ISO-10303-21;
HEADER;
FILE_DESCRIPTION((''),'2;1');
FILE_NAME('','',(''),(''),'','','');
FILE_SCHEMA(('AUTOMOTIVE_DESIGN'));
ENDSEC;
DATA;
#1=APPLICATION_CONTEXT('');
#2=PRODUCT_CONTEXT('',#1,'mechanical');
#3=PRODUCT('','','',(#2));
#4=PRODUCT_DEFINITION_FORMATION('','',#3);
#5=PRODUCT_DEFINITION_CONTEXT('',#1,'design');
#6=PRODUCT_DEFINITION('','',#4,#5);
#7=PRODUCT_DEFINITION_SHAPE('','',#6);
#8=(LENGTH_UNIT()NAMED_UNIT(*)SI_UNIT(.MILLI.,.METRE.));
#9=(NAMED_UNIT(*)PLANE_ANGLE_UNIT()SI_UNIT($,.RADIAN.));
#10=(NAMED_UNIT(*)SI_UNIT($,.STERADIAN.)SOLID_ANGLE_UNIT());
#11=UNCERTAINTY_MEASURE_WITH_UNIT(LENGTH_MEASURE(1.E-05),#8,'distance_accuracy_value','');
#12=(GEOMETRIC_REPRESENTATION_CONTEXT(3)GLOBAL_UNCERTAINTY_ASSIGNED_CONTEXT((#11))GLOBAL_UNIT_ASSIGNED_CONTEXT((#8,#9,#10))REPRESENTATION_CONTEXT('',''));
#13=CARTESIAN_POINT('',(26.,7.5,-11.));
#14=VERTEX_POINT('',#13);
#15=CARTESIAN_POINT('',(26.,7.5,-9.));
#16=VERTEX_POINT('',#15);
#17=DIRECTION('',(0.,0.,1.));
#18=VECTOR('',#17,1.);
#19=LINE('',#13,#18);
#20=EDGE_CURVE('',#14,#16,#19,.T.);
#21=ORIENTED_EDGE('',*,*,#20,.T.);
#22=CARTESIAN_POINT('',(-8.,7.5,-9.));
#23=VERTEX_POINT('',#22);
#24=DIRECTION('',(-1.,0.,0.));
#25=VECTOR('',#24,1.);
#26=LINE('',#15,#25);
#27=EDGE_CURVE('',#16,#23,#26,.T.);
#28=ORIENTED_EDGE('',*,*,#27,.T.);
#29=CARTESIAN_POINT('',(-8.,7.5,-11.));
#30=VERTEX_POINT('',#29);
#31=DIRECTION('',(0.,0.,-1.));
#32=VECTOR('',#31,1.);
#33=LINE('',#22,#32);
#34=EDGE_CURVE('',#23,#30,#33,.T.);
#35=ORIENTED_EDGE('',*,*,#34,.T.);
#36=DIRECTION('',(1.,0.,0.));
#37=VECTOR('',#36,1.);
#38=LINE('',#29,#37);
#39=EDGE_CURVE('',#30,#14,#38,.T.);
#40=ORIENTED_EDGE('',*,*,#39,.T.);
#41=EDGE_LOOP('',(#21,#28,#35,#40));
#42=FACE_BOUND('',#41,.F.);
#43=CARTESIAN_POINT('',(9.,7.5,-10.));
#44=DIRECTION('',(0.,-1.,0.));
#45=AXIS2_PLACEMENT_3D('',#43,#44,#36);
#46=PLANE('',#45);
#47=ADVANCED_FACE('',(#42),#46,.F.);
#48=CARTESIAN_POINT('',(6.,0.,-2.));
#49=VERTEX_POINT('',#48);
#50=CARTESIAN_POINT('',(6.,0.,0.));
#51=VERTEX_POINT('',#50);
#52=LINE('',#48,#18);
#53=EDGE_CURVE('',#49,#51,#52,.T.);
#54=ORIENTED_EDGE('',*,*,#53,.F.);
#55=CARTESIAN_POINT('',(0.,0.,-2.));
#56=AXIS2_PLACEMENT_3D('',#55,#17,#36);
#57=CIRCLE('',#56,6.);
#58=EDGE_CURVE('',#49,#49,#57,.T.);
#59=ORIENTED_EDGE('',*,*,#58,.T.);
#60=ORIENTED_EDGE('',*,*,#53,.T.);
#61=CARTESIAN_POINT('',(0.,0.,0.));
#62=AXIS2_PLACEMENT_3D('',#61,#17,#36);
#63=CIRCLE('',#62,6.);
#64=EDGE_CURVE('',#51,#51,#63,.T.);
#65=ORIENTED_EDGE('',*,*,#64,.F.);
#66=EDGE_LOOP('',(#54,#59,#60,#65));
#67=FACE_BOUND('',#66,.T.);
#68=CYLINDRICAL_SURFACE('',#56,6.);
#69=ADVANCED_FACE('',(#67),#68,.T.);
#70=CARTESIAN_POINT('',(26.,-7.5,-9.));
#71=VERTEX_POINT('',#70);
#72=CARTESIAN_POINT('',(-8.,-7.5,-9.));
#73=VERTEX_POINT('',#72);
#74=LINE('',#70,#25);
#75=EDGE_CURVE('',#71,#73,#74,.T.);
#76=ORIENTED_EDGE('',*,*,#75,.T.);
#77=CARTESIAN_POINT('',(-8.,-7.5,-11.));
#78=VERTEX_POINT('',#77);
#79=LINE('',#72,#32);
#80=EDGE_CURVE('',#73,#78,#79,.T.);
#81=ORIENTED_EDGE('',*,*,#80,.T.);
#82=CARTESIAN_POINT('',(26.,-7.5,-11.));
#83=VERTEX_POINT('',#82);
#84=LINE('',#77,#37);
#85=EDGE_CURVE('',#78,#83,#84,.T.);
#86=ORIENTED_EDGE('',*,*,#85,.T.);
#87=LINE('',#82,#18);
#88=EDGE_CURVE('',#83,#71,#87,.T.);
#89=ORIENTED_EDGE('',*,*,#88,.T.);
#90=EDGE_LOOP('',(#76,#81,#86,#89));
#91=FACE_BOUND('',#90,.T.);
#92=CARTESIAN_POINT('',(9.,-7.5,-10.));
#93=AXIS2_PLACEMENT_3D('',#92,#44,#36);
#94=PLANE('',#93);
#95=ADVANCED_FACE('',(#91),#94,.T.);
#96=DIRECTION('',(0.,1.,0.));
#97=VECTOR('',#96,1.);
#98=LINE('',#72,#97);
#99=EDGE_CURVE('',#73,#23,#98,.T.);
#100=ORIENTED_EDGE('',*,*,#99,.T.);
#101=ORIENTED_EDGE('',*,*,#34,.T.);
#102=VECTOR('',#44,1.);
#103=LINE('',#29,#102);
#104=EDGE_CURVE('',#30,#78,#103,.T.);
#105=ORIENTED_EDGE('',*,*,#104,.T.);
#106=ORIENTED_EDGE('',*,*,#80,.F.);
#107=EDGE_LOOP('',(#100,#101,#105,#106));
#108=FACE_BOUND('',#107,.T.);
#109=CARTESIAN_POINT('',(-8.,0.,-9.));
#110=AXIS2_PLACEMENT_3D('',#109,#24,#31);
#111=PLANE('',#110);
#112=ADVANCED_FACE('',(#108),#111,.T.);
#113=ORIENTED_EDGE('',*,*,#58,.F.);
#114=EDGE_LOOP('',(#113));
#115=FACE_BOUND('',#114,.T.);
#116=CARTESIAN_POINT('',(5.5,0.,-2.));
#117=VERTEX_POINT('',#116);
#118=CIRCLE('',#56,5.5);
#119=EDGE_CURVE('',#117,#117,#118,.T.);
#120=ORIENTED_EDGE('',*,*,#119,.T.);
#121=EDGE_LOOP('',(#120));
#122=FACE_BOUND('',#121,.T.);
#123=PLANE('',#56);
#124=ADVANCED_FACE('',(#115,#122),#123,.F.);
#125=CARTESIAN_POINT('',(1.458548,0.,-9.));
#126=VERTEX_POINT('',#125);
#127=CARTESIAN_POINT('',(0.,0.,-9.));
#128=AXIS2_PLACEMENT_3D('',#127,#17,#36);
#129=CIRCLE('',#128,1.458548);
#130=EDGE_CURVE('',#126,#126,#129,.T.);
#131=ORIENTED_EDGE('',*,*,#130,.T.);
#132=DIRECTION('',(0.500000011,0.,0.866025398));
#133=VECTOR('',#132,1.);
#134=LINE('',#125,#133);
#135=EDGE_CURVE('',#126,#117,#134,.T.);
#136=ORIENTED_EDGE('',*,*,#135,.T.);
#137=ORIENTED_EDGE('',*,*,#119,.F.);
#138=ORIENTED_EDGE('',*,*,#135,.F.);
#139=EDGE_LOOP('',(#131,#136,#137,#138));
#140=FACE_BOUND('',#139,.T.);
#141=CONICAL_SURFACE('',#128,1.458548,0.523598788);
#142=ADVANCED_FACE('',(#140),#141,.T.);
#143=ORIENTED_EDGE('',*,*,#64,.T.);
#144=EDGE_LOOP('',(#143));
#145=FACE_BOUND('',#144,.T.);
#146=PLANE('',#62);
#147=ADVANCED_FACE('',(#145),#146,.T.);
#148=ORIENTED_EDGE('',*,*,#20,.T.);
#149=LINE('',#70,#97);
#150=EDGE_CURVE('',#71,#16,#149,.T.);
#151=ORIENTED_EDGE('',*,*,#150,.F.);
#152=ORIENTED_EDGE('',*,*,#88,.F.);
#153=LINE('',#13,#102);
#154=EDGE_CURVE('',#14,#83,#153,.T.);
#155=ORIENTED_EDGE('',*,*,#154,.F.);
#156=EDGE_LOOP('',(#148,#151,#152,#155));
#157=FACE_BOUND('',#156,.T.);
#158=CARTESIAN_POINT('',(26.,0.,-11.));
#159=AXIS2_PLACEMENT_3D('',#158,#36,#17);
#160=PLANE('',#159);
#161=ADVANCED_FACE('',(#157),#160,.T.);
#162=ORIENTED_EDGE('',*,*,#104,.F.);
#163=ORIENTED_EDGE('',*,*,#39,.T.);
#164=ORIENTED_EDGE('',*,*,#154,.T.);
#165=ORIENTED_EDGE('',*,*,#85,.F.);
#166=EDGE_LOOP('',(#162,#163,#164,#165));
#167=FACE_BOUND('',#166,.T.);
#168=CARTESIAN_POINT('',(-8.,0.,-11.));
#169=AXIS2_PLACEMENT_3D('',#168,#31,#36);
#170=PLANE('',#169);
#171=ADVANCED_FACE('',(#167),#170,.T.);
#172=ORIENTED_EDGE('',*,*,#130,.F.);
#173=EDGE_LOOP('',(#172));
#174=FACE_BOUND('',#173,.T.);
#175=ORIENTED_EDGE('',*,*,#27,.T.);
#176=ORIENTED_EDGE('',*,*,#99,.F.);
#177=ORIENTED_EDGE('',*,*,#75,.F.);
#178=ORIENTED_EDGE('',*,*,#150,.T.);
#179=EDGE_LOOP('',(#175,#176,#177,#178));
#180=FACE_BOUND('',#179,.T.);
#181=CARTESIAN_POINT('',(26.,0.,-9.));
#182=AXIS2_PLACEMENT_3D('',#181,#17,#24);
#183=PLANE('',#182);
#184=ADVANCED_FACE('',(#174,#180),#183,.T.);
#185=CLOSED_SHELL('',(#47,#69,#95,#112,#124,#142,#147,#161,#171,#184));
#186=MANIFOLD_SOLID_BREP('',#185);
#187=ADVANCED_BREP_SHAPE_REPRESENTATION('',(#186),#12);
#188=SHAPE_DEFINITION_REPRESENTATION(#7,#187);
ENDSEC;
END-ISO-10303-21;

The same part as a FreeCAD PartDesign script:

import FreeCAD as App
import Part
import Sketcher

V = App.Vector
Q = App.Units.Quantity

doc = App.newDocument("Part")
body = doc.addObject("PartDesign::Body", "Body")

sketch1 = doc.addObject("Sketcher::SketchObject", "Sketch")
body.addObject(sketch1)
sketch1.AttachmentSupport = (doc.XZ_Plane, [""])
sketch1.MapMode = "FlatFace"
sketch1.addGeometry(Part.LineSegment(V(6, 0, 0), V(0, 0, 0)), False)
sketch1.addGeometry(Part.LineSegment(V(0, 0, 0), V(0, -9, 0)), False)
sketch1.addGeometry(Part.LineSegment(V(0, -9, 0), V(1.5, -9, 0)), False)
sketch1.addGeometry(Part.LineSegment(V(1.5, -9, 0), V(5.5, -2, 0)), False)
sketch1.addGeometry(Part.LineSegment(V(5.5, -2, 0), V(6, -2, 0)), False)
sketch1.addGeometry(Part.LineSegment(V(6, -2, 0), V(6, 0, 0)), False)
sketch1.addConstraint(Sketcher.Constraint("Coincident", 0, 2, 1, 1))
sketch1.addConstraint(Sketcher.Constraint("Coincident", 1, 2, 2, 1))
sketch1.addConstraint(Sketcher.Constraint("Coincident", 2, 2, 3, 1))
sketch1.addConstraint(Sketcher.Constraint("Coincident", 3, 2, 4, 1))
sketch1.addConstraint(Sketcher.Constraint("Coincident", 4, 2, 5, 1))
sketch1.addConstraint(Sketcher.Constraint("Coincident", 5, 2, 0, 1))
sketch1.addConstraint(Sketcher.Constraint("Horizontal", 0))
sketch1.addConstraint(Sketcher.Constraint("Vertical", 1))
sketch1.addConstraint(Sketcher.Constraint("Horizontal", 2))
sketch1.addConstraint(Sketcher.Constraint("Horizontal", 4))
sketch1.addConstraint(Sketcher.Constraint("Vertical", 5))
sketch1.addConstraint(Sketcher.Constraint("Coincident", 0, 2, -1, 1))
sketch1.addConstraint(Sketcher.Constraint("DistanceX", 0, 2, 0, 1, 6.0))
sketch1.addConstraint(Sketcher.Constraint("DistanceY", 1, 2, 1, 1, 9.0))
sketch1.addConstraint(Sketcher.Constraint("DistanceY", 5, 1, 5, 2, 2.0))
sketch1.addConstraint(Sketcher.Constraint("Angle", 3, Q("59.999999 deg")))
sketch1.addConstraint(Sketcher.Constraint("DistanceX", 4, 1, 4, 2, 0.5))
revolution = doc.addObject("PartDesign::Revolution", "Revolution")
body.addObject(revolution)
revolution.Profile = sketch1
revolution.ReferenceAxis = (sketch1, ["V_Axis"])
revolution.Angle = 360

sketch2 = doc.addObject("Sketcher::SketchObject", "Sketch001")
body.addObject(sketch2)
sketch2.AttachmentSupport = (doc.XZ_Plane, [""])
sketch2.MapMode = "FlatFace"
sketch2.addGeometry(Part.LineSegment(V(-8, -9, 0), V(-8, -11, 0)), False)
sketch2.addGeometry(Part.LineSegment(V(-8, -11, 0), V(26, -11, 0)), False)
sketch2.addGeometry(Part.LineSegment(V(26, -11, 0), V(26, -9, 0)), False)
sketch2.addGeometry(Part.LineSegment(V(26, -9, 0), V(-8, -9, 0)), False)
sketch2.addConstraint(Sketcher.Constraint("Coincident", 0, 2, 1, 1))
sketch2.addConstraint(Sketcher.Constraint("Coincident", 1, 2, 2, 1))
sketch2.addConstraint(Sketcher.Constraint("Coincident", 2, 2, 3, 1))
sketch2.addConstraint(Sketcher.Constraint("Coincident", 3, 2, 0, 1))
sketch2.addConstraint(Sketcher.Constraint("Vertical", 0))
sketch2.addConstraint(Sketcher.Constraint("Horizontal", 1))
sketch2.addConstraint(Sketcher.Constraint("Vertical", 2))
sketch2.addConstraint(Sketcher.Constraint("Horizontal", 3))
sketch2.addConstraint(Sketcher.Constraint("DistanceX", 1, 1, 1, 2, 34.0))
sketch2.addConstraint(Sketcher.Constraint("DistanceY", 0, 2, 0, 1, 2.0))
sketch2.addConstraint(Sketcher.Constraint("DistanceX", 0, 2, -1, 1, 8.0))
sketch2.addConstraint(Sketcher.Constraint("DistanceY", 0, 2, -1, 1, 11.0))
pad1 = doc.addObject("PartDesign::Pad", "Pad")
body.addObject(pad1)
pad1.Profile = sketch2
pad1.Length = 15
pad1.Midplane = True

doc.recompute()
